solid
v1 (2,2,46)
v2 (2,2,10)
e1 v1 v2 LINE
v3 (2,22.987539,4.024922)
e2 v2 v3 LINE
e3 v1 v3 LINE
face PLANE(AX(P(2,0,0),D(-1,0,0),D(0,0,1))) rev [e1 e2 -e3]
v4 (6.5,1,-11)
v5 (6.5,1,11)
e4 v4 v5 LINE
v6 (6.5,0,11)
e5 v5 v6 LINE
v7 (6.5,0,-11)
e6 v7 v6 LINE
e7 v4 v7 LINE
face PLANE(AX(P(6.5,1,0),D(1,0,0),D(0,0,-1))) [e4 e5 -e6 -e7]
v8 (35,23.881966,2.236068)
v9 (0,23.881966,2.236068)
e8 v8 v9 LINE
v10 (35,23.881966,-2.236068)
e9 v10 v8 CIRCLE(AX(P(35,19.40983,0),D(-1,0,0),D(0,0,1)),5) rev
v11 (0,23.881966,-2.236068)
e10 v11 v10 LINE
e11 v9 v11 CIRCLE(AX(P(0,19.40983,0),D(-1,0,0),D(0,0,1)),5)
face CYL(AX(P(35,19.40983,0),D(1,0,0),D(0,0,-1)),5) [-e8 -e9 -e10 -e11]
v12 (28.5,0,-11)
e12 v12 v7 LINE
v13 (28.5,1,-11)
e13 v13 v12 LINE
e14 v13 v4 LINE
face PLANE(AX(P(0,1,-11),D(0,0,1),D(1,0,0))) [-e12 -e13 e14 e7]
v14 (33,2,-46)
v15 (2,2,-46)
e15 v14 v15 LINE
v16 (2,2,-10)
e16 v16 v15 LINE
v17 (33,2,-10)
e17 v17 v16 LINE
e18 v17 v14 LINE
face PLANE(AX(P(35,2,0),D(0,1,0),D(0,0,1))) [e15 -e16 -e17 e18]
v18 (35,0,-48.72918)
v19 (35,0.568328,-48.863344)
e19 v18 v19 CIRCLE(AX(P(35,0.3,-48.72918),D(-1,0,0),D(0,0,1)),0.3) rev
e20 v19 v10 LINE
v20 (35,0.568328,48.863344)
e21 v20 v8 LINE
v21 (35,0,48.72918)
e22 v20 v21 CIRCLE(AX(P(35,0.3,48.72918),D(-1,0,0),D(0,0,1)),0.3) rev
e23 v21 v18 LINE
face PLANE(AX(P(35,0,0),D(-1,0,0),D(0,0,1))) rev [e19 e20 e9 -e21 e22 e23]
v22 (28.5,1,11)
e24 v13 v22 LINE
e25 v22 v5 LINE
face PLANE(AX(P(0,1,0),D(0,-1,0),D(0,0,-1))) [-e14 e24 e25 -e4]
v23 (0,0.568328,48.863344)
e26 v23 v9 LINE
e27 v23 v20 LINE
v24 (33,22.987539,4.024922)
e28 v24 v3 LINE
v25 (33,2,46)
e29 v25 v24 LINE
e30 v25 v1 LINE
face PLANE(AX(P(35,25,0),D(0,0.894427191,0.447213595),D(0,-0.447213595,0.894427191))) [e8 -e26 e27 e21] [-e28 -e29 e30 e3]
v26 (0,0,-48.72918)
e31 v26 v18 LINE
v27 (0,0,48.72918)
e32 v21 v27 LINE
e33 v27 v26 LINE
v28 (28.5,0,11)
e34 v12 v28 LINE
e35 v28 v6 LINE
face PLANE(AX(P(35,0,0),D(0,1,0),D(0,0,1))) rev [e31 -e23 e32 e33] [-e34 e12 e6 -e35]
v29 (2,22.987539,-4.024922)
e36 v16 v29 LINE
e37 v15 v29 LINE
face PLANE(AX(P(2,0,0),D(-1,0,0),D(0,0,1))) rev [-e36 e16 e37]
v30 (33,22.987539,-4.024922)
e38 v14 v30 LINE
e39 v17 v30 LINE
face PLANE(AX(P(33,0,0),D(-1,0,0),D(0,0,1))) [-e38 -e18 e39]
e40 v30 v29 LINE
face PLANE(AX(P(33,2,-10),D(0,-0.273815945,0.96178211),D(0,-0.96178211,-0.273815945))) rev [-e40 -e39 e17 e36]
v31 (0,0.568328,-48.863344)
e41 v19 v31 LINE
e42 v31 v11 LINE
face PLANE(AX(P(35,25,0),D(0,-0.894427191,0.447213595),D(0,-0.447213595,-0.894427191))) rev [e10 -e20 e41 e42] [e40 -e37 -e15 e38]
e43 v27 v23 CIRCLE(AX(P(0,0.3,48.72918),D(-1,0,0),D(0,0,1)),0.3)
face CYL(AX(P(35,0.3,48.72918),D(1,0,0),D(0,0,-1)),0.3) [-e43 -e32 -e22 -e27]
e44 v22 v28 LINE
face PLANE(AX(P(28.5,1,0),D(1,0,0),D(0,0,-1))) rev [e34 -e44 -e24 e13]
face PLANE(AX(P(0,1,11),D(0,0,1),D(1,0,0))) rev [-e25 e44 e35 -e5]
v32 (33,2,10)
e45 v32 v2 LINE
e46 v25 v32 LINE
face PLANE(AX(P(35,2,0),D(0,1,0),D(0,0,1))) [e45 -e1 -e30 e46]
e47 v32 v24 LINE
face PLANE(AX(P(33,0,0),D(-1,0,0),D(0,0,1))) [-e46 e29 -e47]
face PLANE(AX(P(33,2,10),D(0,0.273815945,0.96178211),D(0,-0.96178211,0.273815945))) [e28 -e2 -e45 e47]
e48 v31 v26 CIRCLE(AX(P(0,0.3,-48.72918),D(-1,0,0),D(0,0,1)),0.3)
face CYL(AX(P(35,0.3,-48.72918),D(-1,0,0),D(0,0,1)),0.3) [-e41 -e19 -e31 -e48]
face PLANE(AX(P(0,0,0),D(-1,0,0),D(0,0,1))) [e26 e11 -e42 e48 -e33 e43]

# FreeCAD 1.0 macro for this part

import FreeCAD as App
import Part
import Sketcher
from FreeCAD import Vector


def edges_at(feature, points):
    """Names of the edges that pass closest to the given points."""
    edges = feature.Shape.Edges
    near = lambda p: min(range(len(edges)), key=lambda i: edges[i].distToShape(Part.Vertex(*p))[0])
    return sorted({f"Edge{near(p) + 1}" for p in points})


def faces_at(feature, points):
    """Names of the faces that lie closest to the given points."""
    faces = feature.Shape.Faces
    near = lambda p: min(range(len(faces)), key=lambda i: faces[i].distToShape(Part.Vertex(*p))[0])
    return sorted({f"Face{near(p) + 1}" for p in points})

doc = App.newDocument("Part")
body = doc.addObject("PartDesign::Body", "Body")

# Sketch on YZ plane
sketch1 = doc.addObject("Sketcher::SketchObject", "Sketch")
body.addObject(sketch1)
sketch1.AttachmentSupport = (doc.YZ_Plane, [""])
sketch1.MapMode = "FlatFace"
sketch1.addGeometry([
    Part.LineSegment(Vector(0, 0, 0), Vector(0, -50, 0)),
    Part.LineSegment(Vector(0, -50, 0), Vector(25, 0, 0)),
    Part.LineSegment(Vector(25, 0, 0), Vector(0, 0, 0)),
], False)
sketch1.addConstraint([
    Sketcher.Constraint("Coincident", 0, 2, 1, 1),
    Sketcher.Constraint("Coincident", 1, 2, 2, 1),
    Sketcher.Constraint("Coincident", 2, 2, 0, 1),
    Sketcher.Constraint("Vertical", 0),
    Sketcher.Constraint("Horizontal", 2),
    Sketcher.Constraint("Coincident", 2, 2, -1, 1),
    Sketcher.Constraint("DistanceX", 2, 2, 2, 1, 25.0),
    Sketcher.Constraint("DistanceY", 0, 2, 0, 1, 50.0),
])
pad1 = doc.addObject("PartDesign::Pad", "Pad")
body.addObject(pad1)
pad1.Profile = sketch1
pad1.Length = 35
doc.recompute()

mirrored = doc.addObject("PartDesign::Mirrored", "Mirrored")
body.addObject(mirrored)
mirrored.Originals = [pad1]
mirrored.MirrorPlane = (doc.XY_Plane, [""])
body.Tip = mirrored
doc.recompute()

thickness = doc.addObject("PartDesign::Thickness", "Thickness")
body.addObject(thickness)
thickness.Base = (mirrored, faces_at(mirrored, [(17.5, 12.5, 25), (17.5, 12.5, -25)]))
thickness.Value = 2
thickness.Reversed = True
thickness.Join = "Intersection"

# Sketch on YZ plane
sketch2 = doc.addObject("Sketcher::SketchObject", "Sketch001")
body.addObject(sketch2)
sketch2.AttachmentSupport = (doc.YZ_Plane, [""])
sketch2.MapMode = "FlatFace"
sketch2.AttachmentOffset = App.Placement(Vector(0, 0, 33), App.Rotation())
sketch2.addGeometry([
    Part.LineSegment(Vector(25, 0, 0), Vector(22.987539, -4.024922, 0)),  # 0
    Part.LineSegment(Vector(22.987539, -4.024922, 0), Vector(2, -4.024922, 0)),  # 1
    Part.LineSegment(Vector(2, -4.024922, 0), Vector(2, 4.024922, 0)),  # 2
    Part.LineSegment(Vector(2, 4.024922, 0), Vector(22.987539, 4.024922, 0)),  # 3
    Part.LineSegment(Vector(22.987539, 4.024922, 0), Vector(25, 0, 0)),  # 4
], False)
sketch2.addConstraint([
    Sketcher.Constraint("Coincident", 0, 2, 1, 1),
    Sketcher.Constraint("Coincident", 1, 2, 2, 1),
    Sketcher.Constraint("Coincident", 2, 2, 3, 1),
    Sketcher.Constraint("Coincident", 3, 2, 4, 1),
    Sketcher.Constraint("Coincident", 4, 2, 0, 1),
    Sketcher.Constraint("Horizontal", 1),
    Sketcher.Constraint("Vertical", 2),
    Sketcher.Constraint("Horizontal", 3),
    Sketcher.Constraint("Symmetric", 0, 2, 3, 2, -1),
    Sketcher.Constraint("PointOnObject", 4, 2, -1),
    Sketcher.Constraint("DistanceX", -1, 1, 1, 2, 2.0),
    Sketcher.Constraint("DistanceX", -1, 1, 4, 2, 25.0),
    Sketcher.Constraint("Distance", 0, 4.5),
    Sketcher.Constraint("DistanceX", 1, 2, 1, 1, 20.987539),
])
pad2 = doc.addObject("PartDesign::Pad", "Pad001")
body.addObject(pad2)
pad2.Profile = sketch2
pad2.Length = 31
pad2.Reversed = True

# Sketch on YZ plane
sketch3 = doc.addObject("Sketcher::SketchObject", "Sketch002")
body.addObject(sketch3)
sketch3.AttachmentSupport = (doc.YZ_Plane, [""])
sketch3.MapMode = "FlatFace"
sketch3.AttachmentOffset = App.Placement(Vector(0, 0, 33), App.Rotation())
sketch3.addGeometry([
    Part.LineSegment(Vector(2, -4.024922, 0), Vector(2, -10, 0)),  # 0
    Part.LineSegment(Vector(2, -10, 0), Vector(22.987539, -4.024922, 0)),  # 1
    Part.LineSegment(Vector(22.987539, -4.024922, 0), Vector(2, -4.024922, 0)),  # 2
    Part.LineSegment(Vector(2, 10, 0), Vector(2, 4.024922, 0)),  # 3
    Part.LineSegment(Vector(2, 4.024922, 0), Vector(22.987539, 4.024922, 0)),  # 4
    Part.LineSegment(Vector(22.987539, 4.024922, 0), Vector(2, 10, 0)),  # 5
], False)
sketch3.addConstraint([
    Sketcher.Constraint("Coincident", 0, 2, 1, 1),
    Sketcher.Constraint("Coincident", 1, 2, 2, 1),
    Sketcher.Constraint("Coincident", 2, 2, 0, 1),
    Sketcher.Constraint("Coincident", 3, 2, 4, 1),
    Sketcher.Constraint("Coincident", 4, 2, 5, 1),
    Sketcher.Constraint("Coincident", 5, 2, 3, 1),
    Sketcher.Constraint("Vertical", 0),
    Sketcher.Constraint("Horizontal", 2),
    Sketcher.Constraint("Vertical", 3),
    Sketcher.Constraint("Horizontal", 4),
    Sketcher.Constraint("Symmetric", 2, 2, 3, 2, -1),
    Sketcher.Constraint("Vertical", 1, 2, 4, 2),
    Sketcher.Constraint("Equal", 0, 3),
    Sketcher.Constraint("DistanceX", -1, 1, 0, 2, 2.0),
    Sketcher.Constraint("DistanceY", 0, 2, -1, 1, 10.0),
    Sketcher.Constraint("DistanceX", 2, 2, 2, 1, 20.987539),
    Sketcher.Constraint("Distance", 1, 21.821511),
])
pad3 = doc.addObject("PartDesign::Pad", "Pad002")
body.addObject(pad3)
pad3.Profile = sketch3
pad3.Length = 31
pad3.Reversed = True
doc.recompute()

fillet = doc.addObject("PartDesign::Fillet", "Fillet")
body.addObject(fillet)
fillet.Base = (pad3, edges_at(pad3, [(17.5, 25, 0)]))
fillet.Radius = 5
doc.recompute()

fillet2 = doc.addObject("PartDesign::Fillet", "Fillet001")
body.addObject(fillet2)
fillet2.Base = (fillet, edges_at(fillet, [(17.5, 0, -50)]))
fillet2.Radius = 0.3
doc.recompute()

fillet3 = doc.addObject("PartDesign::Fillet", "Fillet002")
body.addObject(fillet3)
fillet3.Base = (fillet2, edges_at(fillet2, [(17.5, 0, 50)]))
fillet3.Radius = 0.3

# Sketch on XZ plane
sketch4 = doc.addObject("Sketcher::SketchObject", "Sketch003")
body.addObject(sketch4)
sketch4.AttachmentSupport = (doc.XZ_Plane, [""])
sketch4.MapMode = "FlatFace"
sketch4.addGeometry([
    Part.LineSegment(Vector(6.5, 11, 0), Vector(6.5, -11, 0)),
    Part.LineSegment(Vector(6.5, -11, 0), Vector(28.5, -11, 0)),
    Part.LineSegment(Vector(28.5, -11, 0), Vector(28.5, 11, 0)),
    Part.LineSegment(Vector(28.5, 11, 0), Vector(6.5, 11, 0)),
], False)
sketch4.addConstraint([
    Sketcher.Constraint("Coincident", 0, 2, 1, 1),
    Sketcher.Constraint("Coincident", 1, 2, 2, 1),
    Sketcher.Constraint("Coincident", 2, 2, 3, 1),
    Sketcher.Constraint("Coincident", 3, 2, 0, 1),
    Sketcher.Constraint("Vertical", 0),
    Sketcher.Constraint("Horizontal", 1),
    Sketcher.Constraint("Vertical", 2),
    Sketcher.Constraint("Horizontal", 3),
    Sketcher.Constraint("Equal", 3, 0),
    Sketcher.Constraint("DistanceX", 1, 1, 1, 2, 22.0),
    Sketcher.Constraint("DistanceY", 0, 2, -1, 1, 11.0),
    Sketcher.Constraint("DistanceX", -1, 1, 0, 2, 6.5),
])
pocket1 = doc.addObject("PartDesign::Pocket", "Pocket")
body.addObject(pocket1)
pocket1.Profile = sketch4
pocket1.Length = 1

doc.recompute()
